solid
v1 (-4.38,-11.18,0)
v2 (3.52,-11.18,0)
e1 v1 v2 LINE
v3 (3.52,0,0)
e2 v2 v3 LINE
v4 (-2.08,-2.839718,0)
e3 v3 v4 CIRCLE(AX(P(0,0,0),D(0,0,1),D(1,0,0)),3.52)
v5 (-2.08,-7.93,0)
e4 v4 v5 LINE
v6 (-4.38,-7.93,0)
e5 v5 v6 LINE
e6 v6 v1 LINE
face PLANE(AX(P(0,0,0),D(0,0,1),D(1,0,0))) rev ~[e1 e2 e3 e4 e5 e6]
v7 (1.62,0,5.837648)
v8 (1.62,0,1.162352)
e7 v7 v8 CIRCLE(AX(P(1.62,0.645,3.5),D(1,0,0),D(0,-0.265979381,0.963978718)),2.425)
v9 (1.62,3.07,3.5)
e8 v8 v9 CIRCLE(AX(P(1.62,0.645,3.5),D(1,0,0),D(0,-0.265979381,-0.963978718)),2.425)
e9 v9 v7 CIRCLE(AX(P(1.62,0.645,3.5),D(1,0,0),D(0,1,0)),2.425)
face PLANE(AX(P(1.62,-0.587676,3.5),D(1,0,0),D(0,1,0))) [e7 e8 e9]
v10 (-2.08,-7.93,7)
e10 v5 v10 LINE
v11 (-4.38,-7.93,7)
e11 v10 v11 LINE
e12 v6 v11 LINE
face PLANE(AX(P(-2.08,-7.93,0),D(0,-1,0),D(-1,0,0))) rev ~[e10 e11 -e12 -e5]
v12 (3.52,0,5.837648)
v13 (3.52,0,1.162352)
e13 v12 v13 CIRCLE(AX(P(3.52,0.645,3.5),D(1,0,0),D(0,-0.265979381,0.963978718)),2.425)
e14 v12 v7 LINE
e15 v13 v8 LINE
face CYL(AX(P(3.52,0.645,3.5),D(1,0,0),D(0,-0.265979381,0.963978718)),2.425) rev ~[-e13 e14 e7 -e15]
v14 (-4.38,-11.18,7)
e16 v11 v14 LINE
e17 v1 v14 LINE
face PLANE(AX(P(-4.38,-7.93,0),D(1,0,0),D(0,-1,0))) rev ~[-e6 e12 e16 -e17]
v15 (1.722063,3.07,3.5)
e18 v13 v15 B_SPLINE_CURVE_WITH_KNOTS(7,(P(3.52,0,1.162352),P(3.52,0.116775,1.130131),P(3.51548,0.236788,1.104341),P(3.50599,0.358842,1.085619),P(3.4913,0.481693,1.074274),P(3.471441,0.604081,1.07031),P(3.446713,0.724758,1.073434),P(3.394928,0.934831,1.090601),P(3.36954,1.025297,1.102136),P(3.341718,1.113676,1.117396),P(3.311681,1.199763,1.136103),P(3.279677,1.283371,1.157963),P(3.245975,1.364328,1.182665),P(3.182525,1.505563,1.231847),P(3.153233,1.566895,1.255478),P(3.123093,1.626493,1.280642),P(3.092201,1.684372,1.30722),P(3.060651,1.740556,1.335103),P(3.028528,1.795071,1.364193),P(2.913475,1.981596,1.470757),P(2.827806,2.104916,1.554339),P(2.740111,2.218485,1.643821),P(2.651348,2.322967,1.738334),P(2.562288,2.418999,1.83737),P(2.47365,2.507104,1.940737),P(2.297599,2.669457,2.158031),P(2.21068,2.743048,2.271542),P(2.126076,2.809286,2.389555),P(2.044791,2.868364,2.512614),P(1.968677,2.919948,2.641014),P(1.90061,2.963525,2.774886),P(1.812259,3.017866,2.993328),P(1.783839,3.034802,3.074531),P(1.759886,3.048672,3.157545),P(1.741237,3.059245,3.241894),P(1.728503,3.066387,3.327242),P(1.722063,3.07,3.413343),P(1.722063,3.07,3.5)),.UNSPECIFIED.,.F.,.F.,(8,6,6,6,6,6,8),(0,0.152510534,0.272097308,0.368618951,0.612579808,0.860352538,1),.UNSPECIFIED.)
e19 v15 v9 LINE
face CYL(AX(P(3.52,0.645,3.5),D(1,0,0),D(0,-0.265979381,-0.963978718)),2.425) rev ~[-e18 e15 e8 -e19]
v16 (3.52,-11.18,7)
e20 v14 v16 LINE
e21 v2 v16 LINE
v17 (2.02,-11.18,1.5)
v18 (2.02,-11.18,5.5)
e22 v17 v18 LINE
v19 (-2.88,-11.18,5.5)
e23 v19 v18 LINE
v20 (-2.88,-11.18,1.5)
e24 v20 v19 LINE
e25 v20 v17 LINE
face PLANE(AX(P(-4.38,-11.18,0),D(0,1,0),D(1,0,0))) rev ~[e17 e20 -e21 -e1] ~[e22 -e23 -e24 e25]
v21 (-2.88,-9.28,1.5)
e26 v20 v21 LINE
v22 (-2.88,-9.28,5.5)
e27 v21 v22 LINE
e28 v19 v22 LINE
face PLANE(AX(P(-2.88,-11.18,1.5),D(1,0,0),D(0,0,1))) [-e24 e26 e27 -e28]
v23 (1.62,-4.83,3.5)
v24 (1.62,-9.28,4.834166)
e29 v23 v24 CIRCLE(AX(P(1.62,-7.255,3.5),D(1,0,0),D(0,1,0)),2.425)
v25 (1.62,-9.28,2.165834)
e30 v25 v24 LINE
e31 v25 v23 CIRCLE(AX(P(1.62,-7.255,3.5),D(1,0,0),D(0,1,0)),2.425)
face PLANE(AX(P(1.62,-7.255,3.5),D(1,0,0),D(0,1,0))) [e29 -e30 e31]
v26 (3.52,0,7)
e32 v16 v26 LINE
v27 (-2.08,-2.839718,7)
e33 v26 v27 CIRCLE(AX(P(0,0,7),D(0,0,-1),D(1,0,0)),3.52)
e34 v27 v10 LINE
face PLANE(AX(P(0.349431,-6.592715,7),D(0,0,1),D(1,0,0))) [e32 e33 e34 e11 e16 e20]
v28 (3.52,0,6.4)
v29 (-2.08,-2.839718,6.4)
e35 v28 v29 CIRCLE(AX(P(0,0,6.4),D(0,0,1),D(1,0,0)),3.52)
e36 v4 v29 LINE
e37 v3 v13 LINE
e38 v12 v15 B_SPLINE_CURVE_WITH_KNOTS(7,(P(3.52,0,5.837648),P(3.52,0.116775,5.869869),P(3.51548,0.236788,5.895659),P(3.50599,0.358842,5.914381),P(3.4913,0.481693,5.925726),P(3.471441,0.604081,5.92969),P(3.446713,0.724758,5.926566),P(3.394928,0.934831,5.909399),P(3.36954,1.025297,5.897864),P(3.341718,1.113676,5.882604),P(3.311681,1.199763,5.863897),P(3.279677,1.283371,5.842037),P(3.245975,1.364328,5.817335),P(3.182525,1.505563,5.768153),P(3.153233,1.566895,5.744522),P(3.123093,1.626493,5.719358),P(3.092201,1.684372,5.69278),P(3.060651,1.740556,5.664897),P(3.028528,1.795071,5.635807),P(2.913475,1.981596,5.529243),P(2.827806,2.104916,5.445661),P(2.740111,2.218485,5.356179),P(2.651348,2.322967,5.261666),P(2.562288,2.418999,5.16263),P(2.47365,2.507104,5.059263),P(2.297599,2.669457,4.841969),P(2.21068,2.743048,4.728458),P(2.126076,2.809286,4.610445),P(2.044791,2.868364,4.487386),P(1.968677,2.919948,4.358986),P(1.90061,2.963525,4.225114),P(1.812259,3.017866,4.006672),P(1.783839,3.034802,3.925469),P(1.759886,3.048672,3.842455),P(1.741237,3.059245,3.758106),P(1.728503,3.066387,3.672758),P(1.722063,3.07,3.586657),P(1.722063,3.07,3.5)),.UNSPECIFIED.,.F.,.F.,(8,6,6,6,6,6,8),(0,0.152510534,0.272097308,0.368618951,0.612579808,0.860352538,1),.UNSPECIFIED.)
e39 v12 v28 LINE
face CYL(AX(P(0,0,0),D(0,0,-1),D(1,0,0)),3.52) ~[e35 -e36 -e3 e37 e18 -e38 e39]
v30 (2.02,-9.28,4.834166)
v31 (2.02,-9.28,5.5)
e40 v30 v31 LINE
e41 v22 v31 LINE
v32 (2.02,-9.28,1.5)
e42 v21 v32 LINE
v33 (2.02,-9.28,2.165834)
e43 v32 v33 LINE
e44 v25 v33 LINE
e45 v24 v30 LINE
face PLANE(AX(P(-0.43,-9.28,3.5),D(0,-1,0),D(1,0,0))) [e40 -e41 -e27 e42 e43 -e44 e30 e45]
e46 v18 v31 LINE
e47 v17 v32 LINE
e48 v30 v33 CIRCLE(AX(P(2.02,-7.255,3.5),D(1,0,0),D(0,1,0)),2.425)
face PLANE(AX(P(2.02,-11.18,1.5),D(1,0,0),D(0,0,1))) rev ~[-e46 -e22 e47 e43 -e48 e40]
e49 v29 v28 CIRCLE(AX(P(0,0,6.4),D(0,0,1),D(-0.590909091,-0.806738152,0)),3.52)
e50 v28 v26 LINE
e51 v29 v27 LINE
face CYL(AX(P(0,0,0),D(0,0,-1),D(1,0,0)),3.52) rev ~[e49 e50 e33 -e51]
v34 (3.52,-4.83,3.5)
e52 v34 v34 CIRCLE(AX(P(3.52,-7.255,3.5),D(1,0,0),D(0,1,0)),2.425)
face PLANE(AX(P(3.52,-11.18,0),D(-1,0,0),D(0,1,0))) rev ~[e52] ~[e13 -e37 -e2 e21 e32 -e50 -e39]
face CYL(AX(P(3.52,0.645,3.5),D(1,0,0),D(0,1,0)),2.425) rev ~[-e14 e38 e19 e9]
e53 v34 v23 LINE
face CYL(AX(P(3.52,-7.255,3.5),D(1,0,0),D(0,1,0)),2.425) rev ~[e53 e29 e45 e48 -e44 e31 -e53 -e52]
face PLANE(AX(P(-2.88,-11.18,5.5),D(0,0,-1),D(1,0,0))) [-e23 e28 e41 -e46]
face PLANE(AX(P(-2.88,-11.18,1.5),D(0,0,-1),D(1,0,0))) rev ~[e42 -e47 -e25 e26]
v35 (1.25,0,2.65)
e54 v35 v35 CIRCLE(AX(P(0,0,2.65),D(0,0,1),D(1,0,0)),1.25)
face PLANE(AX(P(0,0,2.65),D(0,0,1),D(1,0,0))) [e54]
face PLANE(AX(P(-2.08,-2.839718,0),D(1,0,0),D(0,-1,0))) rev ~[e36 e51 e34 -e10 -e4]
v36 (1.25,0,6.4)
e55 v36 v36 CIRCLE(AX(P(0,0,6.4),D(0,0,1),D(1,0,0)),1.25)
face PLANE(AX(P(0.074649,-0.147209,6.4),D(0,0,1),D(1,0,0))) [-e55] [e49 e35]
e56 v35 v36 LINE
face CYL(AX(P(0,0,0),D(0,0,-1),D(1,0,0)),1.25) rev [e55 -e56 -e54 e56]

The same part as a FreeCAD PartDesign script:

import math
import FreeCAD as App
import Part
import Sketcher
Q = App.Units.Quantity


def add_polygon(sketch, points):
    """Adds a closed chain of lines whose ends are joined by coincident constraints."""
    first, n = sketch.GeometryCount, len(points)
    for a, b in zip(points, points[1:] + points[:1]):
        sketch.addGeometry(Part.LineSegment(App.Vector(*a, 0), App.Vector(*b, 0)), False)
    for i in range(n):
        sketch.addConstraint(Sketcher.Constraint("Coincident", first + i, 2, first + (i + 1) % n, 1))

doc = App.newDocument("Part")
params = doc.addObject("Spreadsheet::Sheet", "Params")
for row, (alias, value) in enumerate([
    ("sketch1_radius", "3.52 mm"),
    ("sketch1_width", "2.3 mm"),
    ("sketch1_width2", "7.9 mm"),
    ("sketch1_height", "11.18 mm"),
    ("sketch1_height2", "3.25 mm"),
    ("pad1_length", "7 mm"),
    ("sketch2_diameter", "2.5 mm"),
    ("sketch2_radius", "3.52 mm"),
    ("pad2_length", "6.4 mm"),
    ("sketch3_diameter", "2.5 mm"),
    ("pad3_length", "2.65 mm"),
    ("sketch4_height", "4 mm"),
    ("sketch4_width", "4.9 mm"),
    ("pocket1_length", "1.9 mm"),
    ("sketch5_diameter", "4.85 mm"),
    ("pocket2_length", "1.9 mm"),
], start=1):
    params.set(f"A{row}", alias)
    params.set(f"B{row}", "=" + value)
    params.setAlias(f"B{row}", alias)

body = doc.addObject("PartDesign::Body", "Body")

sketch1 = doc.addObject("Sketcher::SketchObject", "Sketch")
body.addObject(sketch1)
sketch1.AttachmentSupport = (doc.XY_Plane, [""])
sketch1.MapMode = "FlatFace"
sketch1.addGeometry(Part.LineSegment(App.Vector(3.52, -11.18, 0), App.Vector(3.52, 0, 0)), False)
sketch1.addGeometry(Part.ArcOfCircle(Part.Circle(App.Vector(0, 0, 0), App.Vector(0, 0, 1), 3.52), math.radians(-126.221547), math.radians(0)), False)
sketch1.addGeometry(Part.LineSegment(App.Vector(-2.08, -2.839718, 0), App.Vector(-2.08, -7.93, 0)), False)
sketch1.addGeometry(Part.LineSegment(App.Vector(-2.08, -7.93, 0), App.Vector(-4.38, -7.93, 0)), False)
sketch1.addGeometry(Part.LineSegment(App.Vector(-4.38, -7.93, 0), App.Vector(-4.38, -11.18, 0)), False)
sketch1.addGeometry(Part.LineSegment(App.Vector(-4.38, -11.18, 0), App.Vector(3.52, -11.18, 0)), False)
sketch1.addConstraint(Sketcher.Constraint("Tangent", 0, 2, 1, 2))
sketch1.addConstraint(Sketcher.Constraint("Coincident", 1, 1, 2, 1))
sketch1.addConstraint(Sketcher.Constraint("Coincident", 2, 2, 3, 1))
sketch1.addConstraint(Sketcher.Constraint("Coincident", 3, 2, 4, 1))
sketch1.addConstraint(Sketcher.Constraint("Coincident", 4, 2, 5, 1))
sketch1.addConstraint(Sketcher.Constraint("Coincident", 5, 2, 0, 1))
sketch1.addConstraint(Sketcher.Constraint("Vertical", 0))
sketch1.addConstraint(Sketcher.Constraint("Vertical", 2))
sketch1.addConstraint(Sketcher.Constraint("Horizontal", 3))
sketch1.addConstraint(Sketcher.Constraint("Vertical", 4))
sketch1.addConstraint(Sketcher.Constraint("Horizontal", 5))
sketch1.addConstraint(Sketcher.Constraint("Coincident", 1, 3, -1, 1))
sketch1.addConstraint(Sketcher.Constraint("Radius", 1, Q("3.52 mm")))
sketch1.addConstraint(Sketcher.Constraint("DistanceX", 3, 2, 3, 1, Q("2.3 mm")))
sketch1.addConstraint(Sketcher.Constraint("DistanceX", 5, 1, 5, 2, Q("7.9 mm")))
sketch1.addConstraint(Sketcher.Constraint("DistanceY", 0, 1, 0, 2, Q("11.18 mm")))
sketch1.addConstraint(Sketcher.Constraint("DistanceY", 4, 2, 4, 1, Q("3.25 mm")))
sketch1.setExpression("Constraints[12]", "Params.sketch1_radius")
sketch1.setExpression("Constraints[13]", "Params.sketch1_width")
sketch1.setExpression("Constraints[14]", "Params.sketch1_width2")
sketch1.setExpression("Constraints[15]", "Params.sketch1_height")
sketch1.setExpression("Constraints[16]", "Params.sketch1_height2")
pad1 = doc.addObject("PartDesign::Pad", "Pad")
body.addObject(pad1)
pad1.Profile = sketch1
pad1.setExpression("Length", "Params.pad1_length")

sketch2 = doc.addObject("Sketcher::SketchObject", "Sketch001")
body.addObject(sketch2)
sketch2.AttachmentSupport = (doc.XY_Plane, [""])
sketch2.MapMode = "FlatFace"
sketch2.addGeometry(Part.ArcOfCircle(Part.Circle(App.Vector(0, 0, 0), App.Vector(0, 0, 1), 3.52), math.radians(-126.221547), math.radians(0)), False)
sketch2.addGeometry(Part.ArcOfCircle(Part.Circle(App.Vector(0, 0, 0), App.Vector(0, 0, 1), 3.52), math.radians(0), math.radians(233.778453)), False)
sketch2.addGeometry(Part.Circle(App.Vector(0, 0, 0), App.Vector(0, 0, 1), 1.25), False)
sketch2.addConstraint(Sketcher.Constraint("Tangent", 0, 1, 1, 2))
sketch2.addConstraint(Sketcher.Constraint("Coincident", 1, 1, 0, 2))
sketch2.addConstraint(Sketcher.Constraint("Coincident", 0, 3, -1, 1))
sketch2.addConstraint(Sketcher.Constraint("Coincident", 2, 3, -1, 1))
sketch2.addConstraint(Sketcher.Constraint("PointOnObject", 1, 1, -1))
sketch2.addConstraint(Sketcher.Constraint("Diameter", 2, Q("2.5 mm")))
sketch2.addConstraint(Sketcher.Constraint("Radius", 0, Q("3.52 mm")))
sketch2.addConstraint(Sketcher.Constraint("DistanceX", 0, 1, 1, 1, Q("5.6 mm")))
sketch2.setExpression("Constraints[5]", "Params.sketch2_diameter")
sketch2.setExpression("Constraints[6]", "Params.sketch2_radius")
pad2 = doc.addObject("PartDesign::Pad", "Pad001")
body.addObject(pad2)
pad2.Profile = sketch2
pad2.setExpression("Length", "Params.pad2_length")

sketch3 = doc.addObject("Sketcher::SketchObject", "Sketch002")
body.addObject(sketch3)
sketch3.AttachmentSupport = (doc.XY_Plane, [""])
sketch3.MapMode = "FlatFace"
sketch3.addGeometry(Part.Circle(App.Vector(0, 0, 0), App.Vector(0, 0, 1), 1.25), False)
sketch3.addConstraint(Sketcher.Constraint("Coincident", 0, 3, -1, 1))
sketch3.addConstraint(Sketcher.Constraint("Diameter", 0, Q("2.5 mm")))
sketch3.setExpression("Constraints[1]", "Params.sketch3_diameter")
pad3 = doc.addObject("PartDesign::Pad", "Pad002")
body.addObject(pad3)
pad3.Profile = sketch3
pad3.setExpression("Length", "Params.pad3_length")

sketch4 = doc.addObject("Sketcher::SketchObject", "Sketch003")
body.addObject(sketch4)
sketch4.AttachmentSupport = (doc.XZ_Plane, [""])
sketch4.MapMode = "FlatFace"
sketch4.AttachmentOffset = App.Placement(App.Vector(0, 0, 11.18), App.Rotation())
add_polygon(sketch4, [(-2.88, 5.5), (-2.88, 1.5), (2.02, 1.5), (2.02, 5.5)])
sketch4.addConstraint(Sketcher.Constraint("Vertical", 0))
sketch4.addConstraint(Sketcher.Constraint("Horizontal", 1))
sketch4.addConstraint(Sketcher.Constraint("Vertical", 2))
sketch4.addConstraint(Sketcher.Constraint("Horizontal", 3))
sketch4.addConstraint(Sketcher.Constraint("DistanceY", 0, 2, 0, 1, Q("4 mm")))
sketch4.addConstraint(Sketcher.Constraint("DistanceX", 1, 1, 1, 2, Q("4.9 mm")))
sketch4.addConstraint(Sketcher.Constraint("DistanceY", -1, 1, 0, 2, Q("1.5 mm")))
sketch4.addConstraint(Sketcher.Constraint("DistanceX", 0, 2, -1, 1, Q("2.88 mm")))
sketch4.setExpression("Constraints[8]", "Params.sketch4_height")
sketch4.setExpression("Constraints[9]", "Params.sketch4_width")
pocket1 = doc.addObject("PartDesign::Pocket", "Pocket")
body.addObject(pocket1)
pocket1.Profile = sketch4
pocket1.setExpression("Length", "Params.pocket1_length")

sketch5 = doc.addObject("Sketcher::SketchObject", "Sketch004")
body.addObject(sketch5)
sketch5.AttachmentSupport = (doc.YZ_Plane, [""])
sketch5.MapMode = "FlatFace"
sketch5.AttachmentOffset = App.Placement(App.Vector(0, 0, 3.52), App.Rotation())
sketch5.addGeometry(Part.Circle(App.Vector(-7.255, 3.5, 0), App.Vector(0, 0, 1), 2.425), False)
sketch5.addGeometry(Part.ArcOfCircle(Part.Circle(App.Vector(0.645, 3.5, 0), App.Vector(0, 0, 1), 2.425), math.radians(105.425156), math.radians(254.574844)), False)
sketch5.addGeometry(Part.ArcOfCircle(Part.Circle(App.Vector(0.645, 3.5, 0), App.Vector(0, 0, 1), 2.425), math.radians(-105.425156), math.radians(0)), False)
sketch5.addGeometry(Part.ArcOfCircle(Part.Circle(App.Vector(0.645, 3.5, 0), App.Vector(0, 0, 1), 2.425), math.radians(0), math.radians(105.425156)), False)
sketch5.addConstraint(Sketcher.Constraint("Tangent", 1, 2, 2, 1))
sketch5.addConstraint(Sketcher.Constraint("Tangent", 2, 2, 3, 1))
sketch5.addConstraint(Sketcher.Constraint("Tangent", 3, 2, 1, 1))
sketch5.addConstraint(Sketcher.Constraint("Equal", 0, 1))
sketch5.addConstraint(Sketcher.Constraint("PointOnObject", 1, 2, -2))
sketch5.addConstraint(Sketcher.Constraint("PointOnObject", 3, 2, -2))
sketch5.addConstraint(Sketcher.Constraint("Horizontal", 0, 3, 1, 3))
sketch5.addConstraint(Sketcher.Constraint("Horizontal", 3, 3, 2, 2))
sketch5.addConstraint(Sketcher.Constraint("Diameter", 0, Q("4.85 mm")))
sketch5.addConstraint(Sketcher.Constraint("DistanceY", -1, 1, 0, 3, Q("3.5 mm")))
sketch5.addConstraint(Sketcher.Constraint("DistanceX", 0, 3, 1, 3, Q("7.9 mm")))
sketch5.addConstraint(Sketcher.Constraint("DistanceX", -1, 1, 2, 2, Q("3.07 mm")))
sketch5.setExpression("Constraints[8]", "Params.sketch5_diameter")
pocket2 = doc.addObject("PartDesign::Pocket", "Pocket001")
body.addObject(pocket2)
pocket2.Profile = sketch5
pocket2.setExpression("Length", "Params.pocket2_length")

doc.recompute()
